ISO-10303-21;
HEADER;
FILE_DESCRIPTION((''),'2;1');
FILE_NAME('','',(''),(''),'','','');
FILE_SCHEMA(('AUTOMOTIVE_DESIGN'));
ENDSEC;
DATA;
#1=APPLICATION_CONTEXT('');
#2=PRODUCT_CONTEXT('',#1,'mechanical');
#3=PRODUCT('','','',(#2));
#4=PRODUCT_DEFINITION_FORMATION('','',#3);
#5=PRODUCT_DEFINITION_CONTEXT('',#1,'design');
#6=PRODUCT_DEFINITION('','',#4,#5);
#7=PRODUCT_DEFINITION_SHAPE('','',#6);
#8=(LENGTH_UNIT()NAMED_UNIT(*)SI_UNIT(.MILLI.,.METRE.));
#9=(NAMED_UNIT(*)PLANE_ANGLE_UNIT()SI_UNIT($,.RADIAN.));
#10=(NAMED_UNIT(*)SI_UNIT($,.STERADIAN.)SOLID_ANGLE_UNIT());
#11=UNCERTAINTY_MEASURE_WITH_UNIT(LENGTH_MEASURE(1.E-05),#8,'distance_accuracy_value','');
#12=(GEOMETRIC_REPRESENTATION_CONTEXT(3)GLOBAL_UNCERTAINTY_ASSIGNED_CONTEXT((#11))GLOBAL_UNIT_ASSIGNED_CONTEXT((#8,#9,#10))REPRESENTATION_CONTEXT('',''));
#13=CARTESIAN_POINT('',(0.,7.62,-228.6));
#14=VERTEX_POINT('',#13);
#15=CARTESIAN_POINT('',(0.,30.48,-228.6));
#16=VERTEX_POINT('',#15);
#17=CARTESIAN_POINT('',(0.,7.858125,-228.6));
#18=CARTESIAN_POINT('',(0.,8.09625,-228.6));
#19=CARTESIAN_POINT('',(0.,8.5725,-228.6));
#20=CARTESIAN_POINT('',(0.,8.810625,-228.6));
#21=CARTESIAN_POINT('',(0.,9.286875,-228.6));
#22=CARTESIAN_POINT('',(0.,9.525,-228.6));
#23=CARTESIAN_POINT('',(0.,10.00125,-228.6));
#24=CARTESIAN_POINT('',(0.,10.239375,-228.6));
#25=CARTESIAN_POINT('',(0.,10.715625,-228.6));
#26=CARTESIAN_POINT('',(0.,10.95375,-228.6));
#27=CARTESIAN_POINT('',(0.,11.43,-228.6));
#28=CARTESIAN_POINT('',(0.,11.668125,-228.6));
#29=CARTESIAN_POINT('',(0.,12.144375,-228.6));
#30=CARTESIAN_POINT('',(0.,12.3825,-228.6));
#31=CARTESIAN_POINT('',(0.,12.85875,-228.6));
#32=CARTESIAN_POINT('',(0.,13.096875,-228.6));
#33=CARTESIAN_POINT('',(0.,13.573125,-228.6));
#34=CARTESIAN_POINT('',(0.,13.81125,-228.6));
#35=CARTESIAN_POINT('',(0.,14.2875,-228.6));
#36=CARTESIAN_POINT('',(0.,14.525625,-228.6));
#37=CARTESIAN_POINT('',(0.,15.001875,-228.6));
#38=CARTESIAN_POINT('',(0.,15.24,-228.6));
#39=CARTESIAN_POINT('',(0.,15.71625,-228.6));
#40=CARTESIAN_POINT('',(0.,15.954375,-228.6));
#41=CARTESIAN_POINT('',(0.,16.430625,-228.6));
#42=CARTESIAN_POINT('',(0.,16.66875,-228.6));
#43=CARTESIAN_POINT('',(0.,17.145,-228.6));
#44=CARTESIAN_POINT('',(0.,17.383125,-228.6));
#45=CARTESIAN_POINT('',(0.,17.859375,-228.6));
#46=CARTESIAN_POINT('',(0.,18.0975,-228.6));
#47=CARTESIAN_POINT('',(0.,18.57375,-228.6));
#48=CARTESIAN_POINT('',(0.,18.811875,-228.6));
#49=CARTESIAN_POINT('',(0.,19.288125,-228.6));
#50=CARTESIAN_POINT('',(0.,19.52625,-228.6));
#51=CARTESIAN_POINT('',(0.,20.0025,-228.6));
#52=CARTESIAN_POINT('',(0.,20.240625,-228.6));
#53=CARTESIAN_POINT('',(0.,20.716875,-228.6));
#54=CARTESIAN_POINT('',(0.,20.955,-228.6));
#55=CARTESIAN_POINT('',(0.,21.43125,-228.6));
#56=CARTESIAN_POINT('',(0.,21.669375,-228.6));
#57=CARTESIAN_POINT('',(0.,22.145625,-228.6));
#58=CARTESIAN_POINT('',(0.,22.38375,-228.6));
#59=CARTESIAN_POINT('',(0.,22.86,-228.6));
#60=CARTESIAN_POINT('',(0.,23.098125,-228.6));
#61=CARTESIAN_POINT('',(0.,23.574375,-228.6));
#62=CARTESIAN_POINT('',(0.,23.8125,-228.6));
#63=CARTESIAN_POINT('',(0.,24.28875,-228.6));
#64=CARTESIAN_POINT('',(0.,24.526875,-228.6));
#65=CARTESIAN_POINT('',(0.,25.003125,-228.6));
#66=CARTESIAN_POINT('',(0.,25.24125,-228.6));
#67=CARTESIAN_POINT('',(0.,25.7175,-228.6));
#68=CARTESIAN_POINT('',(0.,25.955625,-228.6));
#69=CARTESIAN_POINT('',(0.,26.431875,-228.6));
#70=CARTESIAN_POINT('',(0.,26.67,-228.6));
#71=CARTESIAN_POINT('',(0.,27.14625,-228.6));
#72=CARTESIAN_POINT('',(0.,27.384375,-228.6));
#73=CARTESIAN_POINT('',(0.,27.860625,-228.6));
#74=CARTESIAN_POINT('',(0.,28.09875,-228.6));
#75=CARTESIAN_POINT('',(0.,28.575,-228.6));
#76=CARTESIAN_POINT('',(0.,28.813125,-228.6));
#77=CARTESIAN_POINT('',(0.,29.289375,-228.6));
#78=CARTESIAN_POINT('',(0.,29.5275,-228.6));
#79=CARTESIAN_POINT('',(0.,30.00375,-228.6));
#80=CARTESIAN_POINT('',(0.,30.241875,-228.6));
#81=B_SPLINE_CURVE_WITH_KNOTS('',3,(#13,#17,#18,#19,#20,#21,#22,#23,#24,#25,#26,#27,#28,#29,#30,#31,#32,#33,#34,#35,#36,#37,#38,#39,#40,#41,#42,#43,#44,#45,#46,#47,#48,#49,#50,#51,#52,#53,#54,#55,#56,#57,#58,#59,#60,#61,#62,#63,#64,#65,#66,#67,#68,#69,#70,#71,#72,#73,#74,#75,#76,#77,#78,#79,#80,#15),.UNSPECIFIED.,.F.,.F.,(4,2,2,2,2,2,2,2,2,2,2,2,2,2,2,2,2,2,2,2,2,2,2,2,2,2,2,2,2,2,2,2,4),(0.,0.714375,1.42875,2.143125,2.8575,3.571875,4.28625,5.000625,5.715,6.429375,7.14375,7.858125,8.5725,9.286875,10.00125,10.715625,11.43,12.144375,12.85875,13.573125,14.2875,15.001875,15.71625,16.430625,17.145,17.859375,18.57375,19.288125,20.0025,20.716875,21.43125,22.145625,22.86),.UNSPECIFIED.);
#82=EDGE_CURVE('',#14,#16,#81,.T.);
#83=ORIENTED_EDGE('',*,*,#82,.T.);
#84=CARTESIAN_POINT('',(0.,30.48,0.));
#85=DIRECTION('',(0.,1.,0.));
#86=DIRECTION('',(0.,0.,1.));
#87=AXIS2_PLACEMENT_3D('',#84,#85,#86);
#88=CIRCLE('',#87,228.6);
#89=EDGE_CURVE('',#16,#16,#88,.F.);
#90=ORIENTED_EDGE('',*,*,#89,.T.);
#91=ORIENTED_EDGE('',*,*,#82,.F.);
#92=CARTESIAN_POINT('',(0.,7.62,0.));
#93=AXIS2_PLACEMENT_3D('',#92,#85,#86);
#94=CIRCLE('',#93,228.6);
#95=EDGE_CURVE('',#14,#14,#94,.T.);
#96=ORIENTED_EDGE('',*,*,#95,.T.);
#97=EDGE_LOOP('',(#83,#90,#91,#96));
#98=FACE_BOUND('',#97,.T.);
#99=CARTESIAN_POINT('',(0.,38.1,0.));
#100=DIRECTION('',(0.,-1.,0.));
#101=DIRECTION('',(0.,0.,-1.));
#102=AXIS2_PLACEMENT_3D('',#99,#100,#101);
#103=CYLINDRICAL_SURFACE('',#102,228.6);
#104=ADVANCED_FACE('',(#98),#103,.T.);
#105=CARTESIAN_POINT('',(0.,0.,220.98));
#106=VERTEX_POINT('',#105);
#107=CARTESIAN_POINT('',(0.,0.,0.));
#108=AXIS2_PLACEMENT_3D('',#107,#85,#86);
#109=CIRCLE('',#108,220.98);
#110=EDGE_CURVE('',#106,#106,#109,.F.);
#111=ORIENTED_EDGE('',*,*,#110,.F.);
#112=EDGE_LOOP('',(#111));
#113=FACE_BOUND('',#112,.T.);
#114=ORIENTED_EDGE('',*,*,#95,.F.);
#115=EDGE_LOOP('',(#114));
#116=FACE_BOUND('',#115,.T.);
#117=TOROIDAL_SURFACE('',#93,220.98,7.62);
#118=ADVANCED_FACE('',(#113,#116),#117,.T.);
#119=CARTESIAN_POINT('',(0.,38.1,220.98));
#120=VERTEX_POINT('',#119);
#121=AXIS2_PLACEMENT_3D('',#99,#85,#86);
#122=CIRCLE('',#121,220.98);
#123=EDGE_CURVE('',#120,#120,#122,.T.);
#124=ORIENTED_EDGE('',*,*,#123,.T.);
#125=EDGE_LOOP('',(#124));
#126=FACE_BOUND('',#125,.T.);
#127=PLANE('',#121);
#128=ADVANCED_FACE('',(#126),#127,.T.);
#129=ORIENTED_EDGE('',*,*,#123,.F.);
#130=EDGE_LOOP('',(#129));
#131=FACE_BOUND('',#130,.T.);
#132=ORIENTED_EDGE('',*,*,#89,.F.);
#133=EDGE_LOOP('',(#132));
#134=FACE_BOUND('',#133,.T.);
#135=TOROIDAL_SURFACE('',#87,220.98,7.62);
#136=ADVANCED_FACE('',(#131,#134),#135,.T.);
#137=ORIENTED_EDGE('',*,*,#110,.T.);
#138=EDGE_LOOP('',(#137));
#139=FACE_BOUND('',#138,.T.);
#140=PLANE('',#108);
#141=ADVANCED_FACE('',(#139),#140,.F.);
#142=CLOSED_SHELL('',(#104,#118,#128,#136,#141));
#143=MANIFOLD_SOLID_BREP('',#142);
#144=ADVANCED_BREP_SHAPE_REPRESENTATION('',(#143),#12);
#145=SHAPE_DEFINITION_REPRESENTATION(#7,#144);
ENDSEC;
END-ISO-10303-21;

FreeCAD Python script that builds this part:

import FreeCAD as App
import Part
import Sketcher
from FreeCAD import Vector
Q = App.Units.Quantity


def edges_at(feature, points):
    """Names of the edges that pass closest to the given points."""
    edges = feature.Shape.Edges
    near = lambda p: min(range(len(edges)), key=lambda i: edges[i].distToShape(Part.Vertex(*p))[0])
    return sorted({f"Edge{near(p) + 1}" for p in points})

doc = App.newDocument("Part")
body = doc.addObject("PartDesign::Body", "Body")

sketch1 = body.newObject("Sketcher::SketchObject", "Sketch")
sketch1.AttachmentSupport = (doc.getObject("XZ_Plane"), [""])
sketch1.MapMode = "FlatFace"
sketch1.addGeometry(Part.Circle(Vector(0, 0, 0), Vector(0, 0, 1), 228.6), False)
sketch1.addConstraint([
    Sketcher.Constraint("Coincident", 0, 3, -1, 1),
    Sketcher.Constraint("Diameter", 0, Q("18 in")),
])
pad1 = body.newObject("PartDesign::Pad", "Pad")
pad1.Profile = sketch1
pad1.Length = Q("1.5 in")
pad1.Reversed = True
doc.recompute()

fillet = body.newObject("PartDesign::Fillet", "Fillet")
fillet.Base = (pad1, edges_at(pad1, [(0, 0, 228.6), (0, 38.1, 228.6)]))
fillet.Radius = Q("0.3 in")

doc.recompute()
